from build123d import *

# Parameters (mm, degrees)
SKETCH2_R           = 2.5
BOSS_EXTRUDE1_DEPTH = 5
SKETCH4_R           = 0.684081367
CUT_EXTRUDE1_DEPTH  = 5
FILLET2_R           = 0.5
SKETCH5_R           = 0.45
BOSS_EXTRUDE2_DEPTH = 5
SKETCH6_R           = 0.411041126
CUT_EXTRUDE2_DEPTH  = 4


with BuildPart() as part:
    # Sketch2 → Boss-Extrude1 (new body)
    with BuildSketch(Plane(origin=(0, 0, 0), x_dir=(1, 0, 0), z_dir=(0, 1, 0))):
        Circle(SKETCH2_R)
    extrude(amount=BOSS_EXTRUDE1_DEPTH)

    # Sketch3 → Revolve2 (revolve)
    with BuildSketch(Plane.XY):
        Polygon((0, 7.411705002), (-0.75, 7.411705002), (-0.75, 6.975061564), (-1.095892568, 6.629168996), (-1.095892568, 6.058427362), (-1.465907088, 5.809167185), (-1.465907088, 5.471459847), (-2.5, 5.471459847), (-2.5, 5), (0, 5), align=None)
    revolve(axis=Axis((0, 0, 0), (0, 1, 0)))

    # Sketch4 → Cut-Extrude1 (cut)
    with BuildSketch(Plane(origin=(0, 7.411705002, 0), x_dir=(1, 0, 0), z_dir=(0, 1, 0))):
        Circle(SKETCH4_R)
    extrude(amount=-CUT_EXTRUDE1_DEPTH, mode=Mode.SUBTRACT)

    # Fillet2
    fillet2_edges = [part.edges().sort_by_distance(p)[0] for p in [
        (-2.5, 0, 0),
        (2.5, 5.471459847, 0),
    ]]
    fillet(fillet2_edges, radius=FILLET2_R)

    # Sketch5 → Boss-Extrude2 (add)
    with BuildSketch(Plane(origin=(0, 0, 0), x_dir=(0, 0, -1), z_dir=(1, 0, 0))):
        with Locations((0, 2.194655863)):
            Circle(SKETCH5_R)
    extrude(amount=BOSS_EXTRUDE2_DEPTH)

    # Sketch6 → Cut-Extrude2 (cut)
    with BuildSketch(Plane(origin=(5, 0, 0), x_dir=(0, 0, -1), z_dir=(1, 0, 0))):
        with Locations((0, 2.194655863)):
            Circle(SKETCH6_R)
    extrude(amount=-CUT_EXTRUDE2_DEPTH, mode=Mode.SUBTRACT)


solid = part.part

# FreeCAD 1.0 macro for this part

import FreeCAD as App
import Part
import Sketcher
Q = App.Units.Quantity


def edges_at(feature, points):
    """Names of the edges that pass closest to the given points."""
    edges = feature.Shape.Edges
    near = lambda p: min(range(len(edges)), key=lambda i: edges[i].distToShape(Part.Vertex(*p))[0])
    return sorted({f"Edge{near(p) + 1}" for p in points})


def add_polygon(sketch, points):
    """Adds a closed chain of lines whose ends are joined by coincident constraints."""
    first, n = sketch.GeometryCount, len(points)
    for a, b in zip(points, points[1:] + points[:1]):
        sketch.addGeometry(Part.LineSegment(App.Vector(*a, 0), App.Vector(*b, 0)), False)
    for i in range(n):
        sketch.addConstraint(Sketcher.Constraint("Coincident", first + i, 2, first + (i + 1) % n, 1))

doc = App.newDocument("Part")
body = doc.addObject("PartDesign::Body", "Body")

sketch1 = body.newObject("Sketcher::SketchObject", "Sketch")
sketch1.AttachmentSupport = (doc.getObject("XZ_Plane"), [""])
sketch1.MapMode = "FlatFace"
sketch1.addGeometry(Part.Circle(App.Vector(0, 0, 0), App.Vector(0, 0, 1), 2.5), False)
sketch1.addConstraint([
    Sketcher.Constraint("Coincident", 0, 3, -1, 1),
    Sketcher.Constraint("Diameter", 0, Q("5 mm")),
])
pad1 = body.newObject("PartDesign::Pad", "Pad")
pad1.Profile = sketch1
pad1.Length = 5
pad1.Reversed = True

sketch2 = body.newObject("Sketcher::SketchObject", "Sketch001")
sketch2.AttachmentSupport = (doc.getObject("XY_Plane"), [""])
sketch2.MapMode = "FlatFace"
add_polygon(sketch2, [(0, 7.41), (-0.75, 7.41), (-0.75, 6.98), (-1.1, 6.63), (-1.1, 6.06), (-1.47, 5.81), (-1.47, 5.47), (-2.5, 5.47), (-2.5, 5), (0, 5)])
sketch2.addConstraint([
    Sketcher.Constraint("Horizontal", 0),
    Sketcher.Constraint("Vertical", 1),
    Sketcher.Constraint("Vertical", 3),
    Sketcher.Constraint("Vertical", 5),
    Sketcher.Constraint("Horizontal", 6),
    Sketcher.Constraint("Vertical", 7),
    Sketcher.Constraint("Horizontal", 8),
    Sketcher.Constraint("Vertical", 9),
    Sketcher.Constraint("PointOnObject", 8, 2, -2),
    Sketcher.Constraint("Angle", 2, Q("-135 deg")),
    Sketcher.Constraint("DistanceX", 8, 1, 8, 2, Q("2.5 mm")),
    Sketcher.Constraint("DistanceY", -1, 1, 7, 2, Q("5 mm")),
    Sketcher.Constraint("DistanceX", 0, 2, 0, 1, Q("0.75 mm")),
    Sketcher.Constraint("DistanceY", 4, 2, 2, 2, Q("0.820002 mm")),
    Sketcher.Constraint("DistanceY", 3, 2, 3, 1, Q("0.570742 mm")),
    Sketcher.Constraint("DistanceY", 7, 2, 7, 1, Q("0.47146 mm")),
    Sketcher.Constraint("DistanceY", 5, 2, 1, 2, Q("1.503602 mm")),
    Sketcher.Constraint("Distance", 4, Q("0.446141 mm")),
    Sketcher.Constraint("DistanceX", 6, 2, 6, 1, Q("1.034093 mm")),
    Sketcher.Constraint("DistanceY", 1, 2, 1, 1, Q("0.436643 mm")),
])
revolution = body.newObject("PartDesign::Revolution", "Revolution")
revolution.Profile = sketch2
revolution.ReferenceAxis = (sketch2, ["V_Axis"])
revolution.Angle = 360

sketch3 = body.newObject("Sketcher::SketchObject", "Sketch002")
sketch3.AttachmentSupport = (doc.getObject("XZ_Plane"), [""])
sketch3.MapMode = "FlatFace"
sketch3.AttachmentOffset = App.Placement(App.Vector(0, 0, -7.411705), App.Rotation())
sketch3.addGeometry(Part.Circle(App.Vector(0, 0, 0), App.Vector(0, 0, 1), 0.7), False)
sketch3.addConstraint([
    Sketcher.Constraint("Coincident", 0, 3, -1, 1),
    Sketcher.Constraint("Diameter", 0, Q("1.368163 mm")),
])
pocket1 = body.newObject("PartDesign::Pocket", "Pocket")
pocket1.Profile = sketch3
pocket1.Length = 5
pocket1.Reversed = True
doc.recompute()

fillet = body.newObject("PartDesign::Fillet", "Fillet")
fillet.Base = (pocket1, edges_at(pocket1, [(-2.5, 0, 0), (2.5, 5.471, 0)]))
fillet.Radius = 0.5

sketch4 = body.newObject("Sketcher::SketchObject", "Sketch003")
sketch4.AttachmentSupport = (doc.getObject("YZ_Plane"), [""])
sketch4.MapMode = "FlatFace"
sketch4.addGeometry(Part.Circle(App.Vector(2.19, 0, 0), App.Vector(0, 0, 1), 0.45), False)
sketch4.addConstraint([
    Sketcher.Constraint("PointOnObject", 0, 3, -1),
    Sketcher.Constraint("Diameter", 0, Q("0.9 mm")),
    Sketcher.Constraint("DistanceX", -1, 1, 0, 3, Q("2.194656 mm")),
])
pad2 = body.newObject("PartDesign::Pad", "Pad001")
pad2.Profile = sketch4
pad2.Length = 5

sketch5 = body.newObject("Sketcher::SketchObject", "Sketch004")
sketch5.AttachmentSupport = (doc.getObject("YZ_Plane"), [""])
sketch5.MapMode = "FlatFace"
sketch5.AttachmentOffset = App.Placement(App.Vector(0, 0, 5), App.Rotation())
sketch5.addGeometry(Part.Circle(App.Vector(2.19, 0, 0), App.Vector(0, 0, 1), 0.41), False)
sketch5.addConstraint([
    Sketcher.Constraint("PointOnObject", 0, 3, -1),
    Sketcher.Constraint("Diameter", 0, Q("0.822082 mm")),
    Sketcher.Constraint("DistanceX", -1, 1, 0, 3, Q("2.194656 mm")),
])
pocket2 = body.newObject("PartDesign::Pocket", "Pocket001")
pocket2.Profile = sketch5
pocket2.Length = 4

doc.recompute()
